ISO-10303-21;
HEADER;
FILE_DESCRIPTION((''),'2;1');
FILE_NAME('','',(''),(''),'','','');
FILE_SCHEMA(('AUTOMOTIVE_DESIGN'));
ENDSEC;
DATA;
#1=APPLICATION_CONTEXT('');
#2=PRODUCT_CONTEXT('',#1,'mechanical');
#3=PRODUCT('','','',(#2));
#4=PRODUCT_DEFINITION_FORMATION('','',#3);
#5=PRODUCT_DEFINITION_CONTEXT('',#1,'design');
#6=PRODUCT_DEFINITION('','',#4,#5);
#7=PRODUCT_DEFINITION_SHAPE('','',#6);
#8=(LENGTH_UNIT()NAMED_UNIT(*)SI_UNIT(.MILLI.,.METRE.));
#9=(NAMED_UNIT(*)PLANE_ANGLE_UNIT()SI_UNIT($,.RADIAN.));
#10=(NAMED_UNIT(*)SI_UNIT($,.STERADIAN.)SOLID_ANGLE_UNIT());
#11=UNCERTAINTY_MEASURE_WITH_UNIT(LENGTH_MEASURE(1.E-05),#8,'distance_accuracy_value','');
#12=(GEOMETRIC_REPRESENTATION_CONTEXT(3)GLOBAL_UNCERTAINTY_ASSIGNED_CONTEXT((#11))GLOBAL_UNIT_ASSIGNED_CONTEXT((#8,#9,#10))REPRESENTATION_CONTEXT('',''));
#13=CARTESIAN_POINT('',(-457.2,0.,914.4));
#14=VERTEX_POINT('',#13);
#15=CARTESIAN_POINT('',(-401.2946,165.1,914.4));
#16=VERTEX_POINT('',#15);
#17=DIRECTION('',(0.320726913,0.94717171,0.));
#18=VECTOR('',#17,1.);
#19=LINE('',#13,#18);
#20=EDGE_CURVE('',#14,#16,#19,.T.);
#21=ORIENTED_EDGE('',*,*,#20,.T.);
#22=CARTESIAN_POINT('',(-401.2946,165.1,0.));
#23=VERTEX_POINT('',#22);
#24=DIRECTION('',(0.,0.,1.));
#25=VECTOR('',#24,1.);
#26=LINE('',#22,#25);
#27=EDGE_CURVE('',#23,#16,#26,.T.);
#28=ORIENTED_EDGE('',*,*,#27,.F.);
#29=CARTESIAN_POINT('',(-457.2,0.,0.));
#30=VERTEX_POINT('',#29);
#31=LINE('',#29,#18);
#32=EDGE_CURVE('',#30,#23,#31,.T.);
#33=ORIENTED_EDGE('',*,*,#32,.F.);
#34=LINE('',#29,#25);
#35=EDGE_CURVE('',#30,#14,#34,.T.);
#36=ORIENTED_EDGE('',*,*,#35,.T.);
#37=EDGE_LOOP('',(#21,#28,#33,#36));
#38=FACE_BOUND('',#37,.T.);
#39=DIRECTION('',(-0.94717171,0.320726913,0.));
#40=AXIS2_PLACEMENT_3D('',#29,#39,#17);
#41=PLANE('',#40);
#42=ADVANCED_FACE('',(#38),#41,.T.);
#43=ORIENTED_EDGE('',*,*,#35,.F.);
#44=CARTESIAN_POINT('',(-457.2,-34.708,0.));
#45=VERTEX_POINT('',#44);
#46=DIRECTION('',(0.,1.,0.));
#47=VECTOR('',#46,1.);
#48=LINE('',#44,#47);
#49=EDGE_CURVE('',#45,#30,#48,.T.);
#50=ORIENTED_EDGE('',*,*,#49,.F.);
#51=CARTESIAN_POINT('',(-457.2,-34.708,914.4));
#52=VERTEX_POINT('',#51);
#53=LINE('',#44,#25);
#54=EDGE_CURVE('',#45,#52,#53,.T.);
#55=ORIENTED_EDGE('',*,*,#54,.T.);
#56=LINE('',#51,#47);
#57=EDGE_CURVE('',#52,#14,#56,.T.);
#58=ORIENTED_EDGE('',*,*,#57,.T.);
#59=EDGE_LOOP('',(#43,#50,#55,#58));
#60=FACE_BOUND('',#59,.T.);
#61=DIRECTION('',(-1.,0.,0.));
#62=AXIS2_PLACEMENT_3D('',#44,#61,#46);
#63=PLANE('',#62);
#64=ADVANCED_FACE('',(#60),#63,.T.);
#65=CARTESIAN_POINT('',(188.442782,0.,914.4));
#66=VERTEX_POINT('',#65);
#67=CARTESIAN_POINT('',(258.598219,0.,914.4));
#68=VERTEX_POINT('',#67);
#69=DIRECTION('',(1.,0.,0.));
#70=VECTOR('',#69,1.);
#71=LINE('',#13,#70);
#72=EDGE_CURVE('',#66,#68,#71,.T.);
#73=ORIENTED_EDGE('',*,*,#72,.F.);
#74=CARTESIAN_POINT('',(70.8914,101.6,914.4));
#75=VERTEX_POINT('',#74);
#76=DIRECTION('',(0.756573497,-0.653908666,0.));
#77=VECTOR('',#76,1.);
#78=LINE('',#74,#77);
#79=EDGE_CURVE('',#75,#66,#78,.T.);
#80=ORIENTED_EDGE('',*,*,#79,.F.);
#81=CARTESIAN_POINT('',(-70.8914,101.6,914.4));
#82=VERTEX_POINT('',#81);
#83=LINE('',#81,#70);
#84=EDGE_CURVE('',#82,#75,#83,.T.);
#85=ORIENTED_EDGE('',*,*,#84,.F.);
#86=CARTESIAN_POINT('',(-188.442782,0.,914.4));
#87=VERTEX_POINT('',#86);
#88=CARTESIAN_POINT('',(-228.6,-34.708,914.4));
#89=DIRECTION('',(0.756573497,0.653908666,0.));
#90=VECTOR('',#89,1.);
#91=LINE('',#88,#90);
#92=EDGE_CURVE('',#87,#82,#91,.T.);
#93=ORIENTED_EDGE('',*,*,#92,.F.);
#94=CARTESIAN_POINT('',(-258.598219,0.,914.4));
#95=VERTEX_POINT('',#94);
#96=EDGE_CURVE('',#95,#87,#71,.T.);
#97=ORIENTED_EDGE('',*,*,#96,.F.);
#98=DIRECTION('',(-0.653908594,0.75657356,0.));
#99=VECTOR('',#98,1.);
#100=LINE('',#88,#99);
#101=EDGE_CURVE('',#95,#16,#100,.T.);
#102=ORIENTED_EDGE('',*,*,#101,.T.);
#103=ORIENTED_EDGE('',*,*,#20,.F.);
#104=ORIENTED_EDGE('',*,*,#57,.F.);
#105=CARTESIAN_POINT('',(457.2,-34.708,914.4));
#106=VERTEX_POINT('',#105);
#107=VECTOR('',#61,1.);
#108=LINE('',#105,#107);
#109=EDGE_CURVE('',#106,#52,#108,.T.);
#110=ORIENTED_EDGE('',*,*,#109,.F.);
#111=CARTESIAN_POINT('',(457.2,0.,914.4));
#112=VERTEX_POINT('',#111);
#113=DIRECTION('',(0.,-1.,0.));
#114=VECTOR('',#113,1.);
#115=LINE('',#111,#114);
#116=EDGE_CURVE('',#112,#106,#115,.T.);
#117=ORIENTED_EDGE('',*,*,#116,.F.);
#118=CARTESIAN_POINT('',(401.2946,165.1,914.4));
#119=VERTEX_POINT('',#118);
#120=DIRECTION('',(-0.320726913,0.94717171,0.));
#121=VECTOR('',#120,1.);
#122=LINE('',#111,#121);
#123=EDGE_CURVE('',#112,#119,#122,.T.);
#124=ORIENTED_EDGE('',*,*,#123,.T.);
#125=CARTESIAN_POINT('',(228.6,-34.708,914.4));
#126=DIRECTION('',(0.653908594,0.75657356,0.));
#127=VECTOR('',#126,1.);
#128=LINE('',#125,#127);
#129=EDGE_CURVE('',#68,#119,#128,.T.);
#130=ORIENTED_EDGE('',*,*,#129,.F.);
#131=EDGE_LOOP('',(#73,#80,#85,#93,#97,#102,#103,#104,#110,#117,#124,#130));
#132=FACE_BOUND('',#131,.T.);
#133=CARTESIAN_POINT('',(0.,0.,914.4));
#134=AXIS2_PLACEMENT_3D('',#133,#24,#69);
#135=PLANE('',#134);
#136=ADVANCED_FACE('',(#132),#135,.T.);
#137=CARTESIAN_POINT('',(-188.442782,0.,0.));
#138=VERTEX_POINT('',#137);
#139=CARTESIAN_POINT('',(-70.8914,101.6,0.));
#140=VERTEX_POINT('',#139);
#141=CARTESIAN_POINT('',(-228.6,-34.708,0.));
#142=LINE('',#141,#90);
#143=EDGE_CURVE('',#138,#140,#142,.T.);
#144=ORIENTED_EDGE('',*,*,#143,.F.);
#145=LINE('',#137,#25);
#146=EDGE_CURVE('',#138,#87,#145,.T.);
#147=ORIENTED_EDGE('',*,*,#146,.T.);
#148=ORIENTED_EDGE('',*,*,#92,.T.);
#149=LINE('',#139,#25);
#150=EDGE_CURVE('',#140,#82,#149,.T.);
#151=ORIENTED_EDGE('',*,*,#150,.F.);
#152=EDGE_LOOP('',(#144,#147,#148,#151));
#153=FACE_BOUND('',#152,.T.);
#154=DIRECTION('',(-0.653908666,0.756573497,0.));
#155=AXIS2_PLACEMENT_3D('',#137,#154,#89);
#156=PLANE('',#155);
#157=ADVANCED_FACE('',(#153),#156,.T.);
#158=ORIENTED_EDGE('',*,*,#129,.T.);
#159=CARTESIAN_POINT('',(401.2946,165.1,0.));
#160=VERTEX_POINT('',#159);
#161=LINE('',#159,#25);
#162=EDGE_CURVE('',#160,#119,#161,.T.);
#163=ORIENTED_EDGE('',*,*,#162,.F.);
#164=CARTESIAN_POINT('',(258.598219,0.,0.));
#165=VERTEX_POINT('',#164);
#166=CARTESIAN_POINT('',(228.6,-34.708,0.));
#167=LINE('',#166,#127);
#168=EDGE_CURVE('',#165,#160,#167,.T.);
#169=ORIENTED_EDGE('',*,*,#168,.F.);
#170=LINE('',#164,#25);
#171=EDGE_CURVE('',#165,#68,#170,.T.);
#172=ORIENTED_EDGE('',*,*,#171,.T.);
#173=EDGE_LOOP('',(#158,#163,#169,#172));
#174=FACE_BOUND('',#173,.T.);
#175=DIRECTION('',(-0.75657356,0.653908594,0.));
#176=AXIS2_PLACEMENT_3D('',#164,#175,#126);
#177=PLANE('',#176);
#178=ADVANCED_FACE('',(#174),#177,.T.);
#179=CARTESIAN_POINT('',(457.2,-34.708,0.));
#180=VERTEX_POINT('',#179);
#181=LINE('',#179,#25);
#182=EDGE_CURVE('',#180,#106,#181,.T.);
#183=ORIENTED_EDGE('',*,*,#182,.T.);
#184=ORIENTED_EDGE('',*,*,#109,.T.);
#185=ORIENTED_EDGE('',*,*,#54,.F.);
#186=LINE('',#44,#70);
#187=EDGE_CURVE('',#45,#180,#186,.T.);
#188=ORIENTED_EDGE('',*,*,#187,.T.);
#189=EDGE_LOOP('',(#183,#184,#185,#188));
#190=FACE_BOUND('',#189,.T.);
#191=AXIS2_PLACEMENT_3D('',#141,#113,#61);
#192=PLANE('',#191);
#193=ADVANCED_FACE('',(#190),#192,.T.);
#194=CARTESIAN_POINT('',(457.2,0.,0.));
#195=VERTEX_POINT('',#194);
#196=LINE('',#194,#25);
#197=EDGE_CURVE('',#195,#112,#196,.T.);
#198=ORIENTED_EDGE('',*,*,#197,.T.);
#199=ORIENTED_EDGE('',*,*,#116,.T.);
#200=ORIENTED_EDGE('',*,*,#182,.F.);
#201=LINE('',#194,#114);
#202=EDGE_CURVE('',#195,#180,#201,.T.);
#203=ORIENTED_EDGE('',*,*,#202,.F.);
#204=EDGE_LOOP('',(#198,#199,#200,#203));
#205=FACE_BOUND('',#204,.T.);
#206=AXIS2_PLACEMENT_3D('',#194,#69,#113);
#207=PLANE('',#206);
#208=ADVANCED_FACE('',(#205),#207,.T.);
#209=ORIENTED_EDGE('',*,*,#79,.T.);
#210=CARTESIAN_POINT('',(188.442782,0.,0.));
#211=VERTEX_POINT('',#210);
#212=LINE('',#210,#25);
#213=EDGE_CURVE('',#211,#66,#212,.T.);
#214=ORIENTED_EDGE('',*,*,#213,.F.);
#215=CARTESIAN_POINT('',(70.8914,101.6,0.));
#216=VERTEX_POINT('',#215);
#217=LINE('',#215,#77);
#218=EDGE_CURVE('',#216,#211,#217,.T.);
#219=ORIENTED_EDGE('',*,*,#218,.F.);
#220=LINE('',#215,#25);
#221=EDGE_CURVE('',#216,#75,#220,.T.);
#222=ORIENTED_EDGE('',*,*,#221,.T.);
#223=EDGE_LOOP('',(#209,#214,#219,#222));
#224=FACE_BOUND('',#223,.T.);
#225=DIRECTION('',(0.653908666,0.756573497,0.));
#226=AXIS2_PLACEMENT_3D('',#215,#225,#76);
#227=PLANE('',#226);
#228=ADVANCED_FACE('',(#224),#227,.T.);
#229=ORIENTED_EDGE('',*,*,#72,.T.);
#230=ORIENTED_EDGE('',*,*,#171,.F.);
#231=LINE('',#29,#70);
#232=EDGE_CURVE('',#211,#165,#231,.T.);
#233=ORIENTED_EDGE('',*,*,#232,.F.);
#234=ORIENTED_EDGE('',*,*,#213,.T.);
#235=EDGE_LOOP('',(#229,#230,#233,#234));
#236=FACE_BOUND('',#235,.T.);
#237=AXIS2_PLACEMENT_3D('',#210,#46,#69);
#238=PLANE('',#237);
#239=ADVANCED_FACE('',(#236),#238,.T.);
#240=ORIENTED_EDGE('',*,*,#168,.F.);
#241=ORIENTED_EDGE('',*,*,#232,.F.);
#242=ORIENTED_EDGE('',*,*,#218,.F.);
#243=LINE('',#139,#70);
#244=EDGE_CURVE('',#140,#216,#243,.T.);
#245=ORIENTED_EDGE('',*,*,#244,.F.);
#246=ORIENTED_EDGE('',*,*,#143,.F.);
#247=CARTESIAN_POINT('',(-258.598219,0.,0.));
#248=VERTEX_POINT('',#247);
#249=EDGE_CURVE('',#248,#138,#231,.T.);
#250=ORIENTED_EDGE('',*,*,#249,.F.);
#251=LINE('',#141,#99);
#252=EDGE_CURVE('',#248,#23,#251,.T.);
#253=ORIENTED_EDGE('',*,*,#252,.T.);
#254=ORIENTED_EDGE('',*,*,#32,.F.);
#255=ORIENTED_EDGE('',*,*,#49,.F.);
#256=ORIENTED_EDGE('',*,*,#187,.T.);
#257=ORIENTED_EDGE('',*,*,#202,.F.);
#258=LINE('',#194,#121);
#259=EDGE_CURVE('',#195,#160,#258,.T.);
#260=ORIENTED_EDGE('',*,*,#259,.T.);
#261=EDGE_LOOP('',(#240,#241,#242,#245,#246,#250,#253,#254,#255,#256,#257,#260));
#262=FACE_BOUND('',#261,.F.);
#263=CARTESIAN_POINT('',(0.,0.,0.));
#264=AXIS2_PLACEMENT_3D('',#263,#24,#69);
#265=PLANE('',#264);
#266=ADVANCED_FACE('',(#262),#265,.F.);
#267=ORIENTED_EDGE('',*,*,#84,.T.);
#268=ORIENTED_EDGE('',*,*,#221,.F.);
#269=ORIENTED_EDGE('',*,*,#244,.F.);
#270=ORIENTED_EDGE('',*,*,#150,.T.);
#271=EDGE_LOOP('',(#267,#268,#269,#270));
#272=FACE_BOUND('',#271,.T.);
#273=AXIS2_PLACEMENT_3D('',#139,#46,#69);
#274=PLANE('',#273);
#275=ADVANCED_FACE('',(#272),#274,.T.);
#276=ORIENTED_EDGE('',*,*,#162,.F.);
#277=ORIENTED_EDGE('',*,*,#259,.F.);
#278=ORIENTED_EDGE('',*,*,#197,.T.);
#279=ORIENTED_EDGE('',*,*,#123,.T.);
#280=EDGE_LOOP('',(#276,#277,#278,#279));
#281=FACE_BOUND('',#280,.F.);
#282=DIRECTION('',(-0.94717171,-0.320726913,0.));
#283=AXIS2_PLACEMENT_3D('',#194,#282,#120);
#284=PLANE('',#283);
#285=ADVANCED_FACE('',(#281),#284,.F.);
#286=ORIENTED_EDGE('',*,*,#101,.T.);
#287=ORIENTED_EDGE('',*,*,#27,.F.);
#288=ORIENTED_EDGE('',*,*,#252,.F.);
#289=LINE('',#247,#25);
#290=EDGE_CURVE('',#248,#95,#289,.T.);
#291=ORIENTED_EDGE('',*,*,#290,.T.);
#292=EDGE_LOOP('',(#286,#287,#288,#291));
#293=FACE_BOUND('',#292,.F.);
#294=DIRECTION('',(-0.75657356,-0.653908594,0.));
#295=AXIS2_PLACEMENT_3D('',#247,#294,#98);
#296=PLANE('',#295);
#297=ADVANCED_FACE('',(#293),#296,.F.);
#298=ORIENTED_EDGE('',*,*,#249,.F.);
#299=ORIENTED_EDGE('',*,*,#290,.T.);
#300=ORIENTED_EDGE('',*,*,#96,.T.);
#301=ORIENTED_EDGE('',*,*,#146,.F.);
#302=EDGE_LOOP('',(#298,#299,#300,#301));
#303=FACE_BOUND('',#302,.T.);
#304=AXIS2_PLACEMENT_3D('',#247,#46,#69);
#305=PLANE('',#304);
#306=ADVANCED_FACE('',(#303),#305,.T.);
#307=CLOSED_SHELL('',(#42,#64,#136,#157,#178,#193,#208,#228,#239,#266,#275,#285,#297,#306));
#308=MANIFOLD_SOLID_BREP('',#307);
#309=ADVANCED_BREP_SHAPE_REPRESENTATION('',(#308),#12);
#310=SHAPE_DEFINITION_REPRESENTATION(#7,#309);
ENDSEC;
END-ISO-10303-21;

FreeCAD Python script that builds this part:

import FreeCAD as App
import Part
import Sketcher
Q = App.Units.Quantity

doc = App.newDocument("Part")
body = doc.addObject("PartDesign::Body", "Body")

# Sketch on XY plane
sketch1 = doc.addObject("Sketcher::SketchObject", "Sketch")
body.addObject(sketch1)
sketch1.AttachmentSupport = (doc.XY_Plane, [""])
sketch1.MapMode = "FlatFace"
sketch1.addGeometry([
    Part.LineSegment(App.Vector(-457, -35, 0), App.Vector(457, -35, 0)),  # 0
    Part.LineSegment(App.Vector(457, -35, 0), App.Vector(457, 0, 0)),  # 1
    Part.LineSegment(App.Vector(457, 0, 0), App.Vector(401, 165, 0)),  # 2
    Part.LineSegment(App.Vector(401, 165, 0), App.Vector(259, 0, 0)),  # 3
    Part.LineSegment(App.Vector(259, 0, 0), App.Vector(188, 0, 0)),  # 4
    Part.LineSegment(App.Vector(188, 0, 0), App.Vector(71, 102, 0)),  # 5
    Part.LineSegment(App.Vector(71, 102, 0), App.Vector(-71, 102, 0)),  # 6
    Part.LineSegment(App.Vector(-71, 102, 0), App.Vector(-188, 0, 0)),  # 7
    Part.LineSegment(App.Vector(-188, 0, 0), App.Vector(-259, 0, 0)),  # 8
    Part.LineSegment(App.Vector(-259, 0, 0), App.Vector(-401, 165, 0)),  # 9
    Part.LineSegment(App.Vector(-401, 165, 0), App.Vector(-457, 0, 0)),  # 10
    Part.LineSegment(App.Vector(-457, 0, 0), App.Vector(-457, -35, 0)),  # 11
], False)
sketch1.addConstraint([
    Sketcher.Constraint("Coincident", 0, 2, 1, 1),
    Sketcher.Constraint("Coincident", 1, 2, 2, 1),
    Sketcher.Constraint("Coincident", 2, 2, 3, 1),
    Sketcher.Constraint("Coincident", 3, 2, 4, 1),
    Sketcher.Constraint("Coincident", 4, 2, 5, 1),
    Sketcher.Constraint("Coincident", 5, 2, 6, 1),
    Sketcher.Constraint("Coincident", 6, 2, 7, 1),
    Sketcher.Constraint("Coincident", 7, 2, 8, 1),
    Sketcher.Constraint("Coincident", 8, 2, 9, 1),
    Sketcher.Constraint("Coincident", 9, 2, 10, 1),
    Sketcher.Constraint("Coincident", 10, 2, 11, 1),
    Sketcher.Constraint("Coincident", 11, 2, 0, 1),
    Sketcher.Constraint("Horizontal", 0),
    Sketcher.Constraint("Vertical", 1),
    Sketcher.Constraint("Horizontal", 4),
    Sketcher.Constraint("Horizontal", 6),
    Sketcher.Constraint("Horizontal", 8),
    Sketcher.Constraint("Vertical", 11),
    Sketcher.Constraint("Symmetric", 4, 2, 7, 2, -1, 1),
    Sketcher.Constraint("Symmetric", 1, 2, 10, 2, -1, 1),
    Sketcher.Constraint("Symmetric", 3, 2, 8, 2, -2),
    Sketcher.Constraint("Symmetric", 2, 2, 9, 2, -2),
    Sketcher.Constraint("PointOnObject", 1, 2, -1),
    Sketcher.Constraint("Perpendicular", 3, 5),
    Sketcher.Constraint("Perpendicular", 7, 9),
    Sketcher.Constraint("DistanceX", 0, 1, 0, 2, Q("36 in")),
    Sketcher.Constraint("DistanceY", -1, 1, 5, 2, Q("4 in")),
    Sketcher.Constraint("DistanceY", -1, 1, 2, 2, Q("6.5 in")),
    Sketcher.Constraint("DistanceX", 6, 2, 6, 1, Q("5.582 in")),
    Sketcher.Constraint("DistanceX", 5, 2, 2, 2, Q("13.008 in")),
    Sketcher.Constraint("DistanceX", 4, 2, 2, 2, Q("8.38 in")),
    Sketcher.Constraint("DistanceY", 1, 1, 1, 2, 34.708),
])
pad1 = doc.addObject("PartDesign::Pad", "Pad")
body.addObject(pad1)
pad1.Profile = sketch1
pad1.Length = Q("36 in")

doc.recompute()
